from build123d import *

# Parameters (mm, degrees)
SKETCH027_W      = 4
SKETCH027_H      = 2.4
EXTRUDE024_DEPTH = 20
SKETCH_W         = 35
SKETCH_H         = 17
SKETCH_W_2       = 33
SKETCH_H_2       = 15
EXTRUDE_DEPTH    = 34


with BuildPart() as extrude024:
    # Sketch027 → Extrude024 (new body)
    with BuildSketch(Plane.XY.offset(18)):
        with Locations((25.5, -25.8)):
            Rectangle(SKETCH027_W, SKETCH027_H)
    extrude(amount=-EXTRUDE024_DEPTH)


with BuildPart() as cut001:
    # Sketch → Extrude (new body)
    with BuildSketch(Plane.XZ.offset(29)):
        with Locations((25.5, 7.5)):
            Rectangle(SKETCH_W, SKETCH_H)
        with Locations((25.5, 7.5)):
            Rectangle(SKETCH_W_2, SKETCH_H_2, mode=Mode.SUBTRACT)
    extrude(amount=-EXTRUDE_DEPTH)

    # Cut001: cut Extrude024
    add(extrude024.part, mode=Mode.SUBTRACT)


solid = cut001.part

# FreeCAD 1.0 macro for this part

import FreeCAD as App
import Part
import Sketcher


def add_polygon(sketch, points):
    """Adds a closed chain of lines whose ends are joined by coincident constraints."""
    first, n = sketch.GeometryCount, len(points)
    for a, b in zip(points, points[1:] + points[:1]):
        sketch.addGeometry(Part.LineSegment(App.Vector(*a, 0), App.Vector(*b, 0)), False)
    for i in range(n):
        sketch.addConstraint(Sketcher.Constraint("Coincident", first + i, 2, first + (i + 1) % n, 1))

doc = App.newDocument("Part")
body = doc.addObject("PartDesign::Body", "Body")

sketch1 = body.newObject("Sketcher::SketchObject", "Sketch")
sketch1.AttachmentSupport = (doc.getObject("XY_Plane"), [""])
sketch1.MapMode = "FlatFace"
sketch1.AttachmentOffset = App.Placement(App.Vector(0, 0, 18), App.Rotation())
add_polygon(sketch1, [(23.5, -24.6), (23.5, -27), (27.5, -27), (27.5, -24.6)])
sketch1.addConstraint(Sketcher.Constraint("Vertical", 0))
sketch1.addConstraint(Sketcher.Constraint("Horizontal", 1))
sketch1.addConstraint(Sketcher.Constraint("Vertical", 2))
sketch1.addConstraint(Sketcher.Constraint("Horizontal", 3))
sketch1.addConstraint(Sketcher.Constraint("DistanceX", 1, 1, 1, 2, 4.0))
sketch1.addConstraint(Sketcher.Constraint("DistanceY", 0, 2, 0, 1, 2.4))
sketch1.addConstraint(Sketcher.Constraint("DistanceY", 0, 2, -1, 1, 27.0))
sketch1.addConstraint(Sketcher.Constraint("DistanceX", -1, 1, 0, 2, 23.5))
pad1 = body.newObject("PartDesign::Pad", "Pad")
pad1.Profile = sketch1
pad1.Length = 20
pad1.Reversed = True
body2 = doc.addObject("PartDesign::Body", "Body001")

sketch2 = body2.newObject("Sketcher::SketchObject", "Sketch001")
sketch2.AttachmentSupport = (doc.getObject("XZ_Plane001"), [""])
sketch2.MapMode = "FlatFace"
sketch2.AttachmentOffset = App.Placement(App.Vector(0, 0, 29), App.Rotation())
add_polygon(sketch2, [(8, 16), (8, -1), (43, -1), (43, 16)])
add_polygon(sketch2, [(42, 0), (9, 0), (9, 15), (42, 15)])
sketch2.addConstraint(Sketcher.Constraint("Vertical", 0))
sketch2.addConstraint(Sketcher.Constraint("Horizontal", 1))
sketch2.addConstraint(Sketcher.Constraint("Vertical", 2))
sketch2.addConstraint(Sketcher.Constraint("Horizontal", 3))
sketch2.addConstraint(Sketcher.Constraint("Horizontal", 4))
sketch2.addConstraint(Sketcher.Constraint("Vertical", 5))
sketch2.addConstraint(Sketcher.Constraint("Horizontal", 6))
sketch2.addConstraint(Sketcher.Constraint("Vertical", 7))
sketch2.addConstraint(Sketcher.Constraint("PointOnObject", 4, 2, -1))
sketch2.addConstraint(Sketcher.Constraint("DistanceX", 1, 1, 1, 2, 35.0))
sketch2.addConstraint(Sketcher.Constraint("DistanceX", 4, 2, 4, 1, 33.0))
sketch2.addConstraint(Sketcher.Constraint("DistanceY", 0, 2, 0, 1, 17.0))
sketch2.addConstraint(Sketcher.Constraint("DistanceY", 5, 1, 5, 2, 15.0))
sketch2.addConstraint(Sketcher.Constraint("DistanceX", -1, 1, 0, 2, 8.0))
sketch2.addConstraint(Sketcher.Constraint("DistanceY", 0, 2, -1, 1, 1.0))
sketch2.addConstraint(Sketcher.Constraint("DistanceX", -1, 1, 4, 2, 9.0))
pad2 = body2.newObject("PartDesign::Pad", "Pad001")
pad2.Profile = sketch2
pad2.Length = 34
pad2.Reversed = True
doc.recompute()

boolean = body2.newObject("PartDesign::Boolean", "Boolean")
boolean.Type = "Cut"
boolean.addObjects([body])

doc.recompute()
